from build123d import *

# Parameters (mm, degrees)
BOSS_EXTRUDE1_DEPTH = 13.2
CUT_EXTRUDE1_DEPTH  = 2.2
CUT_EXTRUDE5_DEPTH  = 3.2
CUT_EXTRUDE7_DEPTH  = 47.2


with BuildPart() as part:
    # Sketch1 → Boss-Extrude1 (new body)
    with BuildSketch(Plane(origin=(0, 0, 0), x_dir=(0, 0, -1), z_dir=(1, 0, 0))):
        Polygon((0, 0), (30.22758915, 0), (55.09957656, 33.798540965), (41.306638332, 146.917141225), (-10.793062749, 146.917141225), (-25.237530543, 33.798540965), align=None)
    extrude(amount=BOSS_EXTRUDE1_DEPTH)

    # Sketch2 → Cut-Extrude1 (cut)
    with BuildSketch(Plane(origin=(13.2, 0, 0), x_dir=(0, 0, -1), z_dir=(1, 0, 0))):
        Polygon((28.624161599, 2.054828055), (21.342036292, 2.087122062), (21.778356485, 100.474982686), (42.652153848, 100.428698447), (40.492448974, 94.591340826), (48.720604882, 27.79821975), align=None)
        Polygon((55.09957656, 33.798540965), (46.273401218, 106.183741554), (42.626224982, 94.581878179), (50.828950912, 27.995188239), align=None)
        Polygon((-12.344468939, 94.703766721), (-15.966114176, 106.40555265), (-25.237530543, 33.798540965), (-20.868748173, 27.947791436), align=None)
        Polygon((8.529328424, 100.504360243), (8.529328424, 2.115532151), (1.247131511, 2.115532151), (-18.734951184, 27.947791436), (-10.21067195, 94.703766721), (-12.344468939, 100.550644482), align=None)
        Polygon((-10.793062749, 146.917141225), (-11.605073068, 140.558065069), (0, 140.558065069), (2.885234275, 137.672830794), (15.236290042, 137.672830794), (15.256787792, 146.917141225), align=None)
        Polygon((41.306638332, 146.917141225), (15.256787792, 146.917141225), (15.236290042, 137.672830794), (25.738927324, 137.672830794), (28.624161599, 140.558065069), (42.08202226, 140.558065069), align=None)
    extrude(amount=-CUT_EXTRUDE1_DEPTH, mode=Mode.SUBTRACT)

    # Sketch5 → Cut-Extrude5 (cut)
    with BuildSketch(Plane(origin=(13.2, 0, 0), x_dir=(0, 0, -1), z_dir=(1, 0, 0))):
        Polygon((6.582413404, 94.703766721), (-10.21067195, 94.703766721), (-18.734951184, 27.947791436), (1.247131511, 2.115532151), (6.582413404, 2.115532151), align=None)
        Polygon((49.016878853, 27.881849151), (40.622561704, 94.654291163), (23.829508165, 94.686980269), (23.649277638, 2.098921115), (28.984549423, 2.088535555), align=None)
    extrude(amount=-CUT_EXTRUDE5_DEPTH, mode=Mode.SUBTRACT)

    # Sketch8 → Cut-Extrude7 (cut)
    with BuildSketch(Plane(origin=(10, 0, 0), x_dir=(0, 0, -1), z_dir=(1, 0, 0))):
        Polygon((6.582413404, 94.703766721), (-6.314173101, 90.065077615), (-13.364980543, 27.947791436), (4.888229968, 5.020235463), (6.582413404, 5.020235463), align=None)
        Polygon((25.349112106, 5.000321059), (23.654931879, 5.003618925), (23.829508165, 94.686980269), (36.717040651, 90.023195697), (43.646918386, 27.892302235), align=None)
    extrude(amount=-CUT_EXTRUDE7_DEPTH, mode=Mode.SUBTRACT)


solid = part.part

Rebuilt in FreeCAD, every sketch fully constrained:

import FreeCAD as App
import Part
import Sketcher
Q = App.Units.Quantity


def add_polygon(sketch, points):
    """Adds a closed chain of lines whose ends are joined by coincident constraints."""
    first, n = sketch.GeometryCount, len(points)
    for a, b in zip(points, points[1:] + points[:1]):
        sketch.addGeometry(Part.LineSegment(App.Vector(*a, 0), App.Vector(*b, 0)), False)
    for i in range(n):
        sketch.addConstraint(Sketcher.Constraint("Coincident", first + i, 2, first + (i + 1) % n, 1))

doc = App.newDocument("Part")
params = doc.addObject("Spreadsheet::Sheet", "Params")
for row, (alias, value) in enumerate([
    ("pad1_length", "13.2 mm"),
    ("pocket1_length", "2.2 mm"),
    ("pocket2_length", "3.2 mm"),
    ("pocket3_length", "47.2 mm"),
], start=1):
    params.set(f"A{row}", alias)
    params.set(f"B{row}", "=" + value)
    params.setAlias(f"B{row}", alias)

body = doc.addObject("PartDesign::Body", "Body")

# Sketch on YZ plane
sketch1 = body.newObject("Sketcher::SketchObject", "Sketch")
sketch1.AttachmentSupport = (doc.getObject("YZ_Plane"), [""])
sketch1.MapMode = "FlatFace"
add_polygon(sketch1, [(0, 0), (0, -30), (34, -55), (147, -41), (147, 11), (34, 25)])  # lines 0-5
sketch1.addConstraint([
    Sketcher.Constraint("Vertical", 0),
    Sketcher.Constraint("Vertical", 3),
    Sketcher.Constraint("Coincident", 5, 2, -1, 1),
    Sketcher.Constraint("Vertical", 1, 2, 4, 2),
    Sketcher.Constraint("DistanceY", 3, 1, 3, 2, Q("52.099701 mm")),
    Sketcher.Constraint("Distance", 4, Q("114.037101 mm")),
    Sketcher.Constraint("DistanceY", 0, 2, 0, 1, Q("30.227589 mm")),
    Sketcher.Constraint("DistanceX", 1, 2, 2, 2, Q("113.1186 mm")),
    Sketcher.Constraint("Distance", 1, Q("41.96376 mm")),
    Sketcher.Constraint("DistanceX", -1, 1, 1, 2, Q("33.798541 mm")),
    Sketcher.Constraint("DistanceY", 2, 2, -1, 1, Q("41.306638 mm")),
])
pad1 = body.newObject("PartDesign::Pad", "Pad")
pad1.Profile = sketch1
pad1.setExpression("Length", "Params.pad1_length")

# Sketch on YZ plane
sketch2 = body.newObject("Sketcher::SketchObject", "Sketch001")
sketch2.AttachmentSupport = (doc.getObject("YZ_Plane"), [""])
sketch2.MapMode = "FlatFace"
sketch2.AttachmentOffset = App.Placement(App.Vector(0, 0, 13.2), App.Rotation())
add_polygon(sketch2, [(2.087122, -21.342036), (2.054828, -28.624162), (27.79822, -48.720605), (94.591341, -40.492449), (100.428698, -42.652154), (100.474983, -21.778356)])  # lines 0-5
add_polygon(sketch2, [(33.798541, -55.099577), (106.183742, -46.273401), (94.581878, -42.626225), (27.995188, -50.828951)])  # lines 6-9
add_polygon(sketch2, [(94.703767, 12.344469), (106.405553, 15.966114), (33.798541, 25.237531), (27.947791, 20.868748)])  # lines 10-13
add_polygon(sketch2, [(2.115532, -8.529328), (100.50436, -8.529328), (100.550644, 12.344469), (94.703767, 10.210672), (27.947791, 18.734951), (2.115532, -1.247132)])  # lines 14-19
add_polygon(sketch2, [(146.917141, 10.793063), (140.558065, 11.605073), (140.558065, 0), (137.672831, -2.885234), (137.672831, -25.738927), (140.558065, -28.624162), (140.558065, -42.082022), (146.917141, -41.306638)])  # lines 20-27
sketch2.addConstraint([
    Sketcher.Constraint("Horizontal", 14),
    Sketcher.Constraint("Vertical", 19),
    Sketcher.Constraint("Vertical", 21),
    Sketcher.Constraint("Vertical", 23),
    Sketcher.Constraint("Vertical", 25),
    Sketcher.Constraint("Vertical", 27),
    Sketcher.Constraint("PointOnObject", 21, 2, -1),
    Sketcher.Constraint("DistanceY", 14, 2, 16, 2, Q("18.74 mm")),
    Sketcher.Constraint("DistanceY", 27, 1, 27, 2, Q("52.099701 mm")),
    Sketcher.Constraint("DistanceY", 23, 2, 20, 2, Q("37.344 mm")),
    Sketcher.Constraint("DistanceX", 14, 1, 14, 2, Q("98.388828 mm")),
    Sketcher.Constraint("DistanceY", 25, 2, 25, 1, Q("13.457861 mm")),
    Sketcher.Constraint("DistanceX", -1, 1, 3, 2, Q("100.428698 mm")),
    Sketcher.Constraint("DistanceY", 6, 2, -1, 1, Q("46.273401 mm")),
    Sketcher.Constraint("DistanceX", 2, 2, 6, 2, Q("11.592401 mm")),
    Sketcher.Constraint("DistanceY", 8, 2, 2, 2, Q("10.336502 mm")),
    Sketcher.Constraint("DistanceY", 8, 2, 12, 2, Q("71.697699 mm")),
    Sketcher.Constraint("DistanceY", 14, 2, 20, 2, Q("20.134401 mm")),
    Sketcher.Constraint("DistanceX", 13, 2, 20, 2, Q("45.854298 mm")),
    Sketcher.Constraint("DistanceX", 16, 2, 20, 2, Q("45.854298 mm")),
    Sketcher.Constraint("DistanceX", 6, 2, 26, 2, Q("40.7334 mm")),
    Sketcher.Constraint("Distance", 2, Q("67.298021 mm")),
    Sketcher.Constraint("Distance", 3, Q("6.224072 mm")),
    Sketcher.Constraint("Distance", 4, Q("20.873849 mm")),
    Sketcher.Constraint("Distance", 5, Q("98.388828 mm")),
    Sketcher.Constraint("Distance", 6, Q("72.921318 mm")),
    Sketcher.Constraint("Distance", 8, Q("67.090029 mm")),
    Sketcher.Constraint("Distance", 13, Q("67.298021 mm")),
    Sketcher.Constraint("Distance", 15, Q("20.873849 mm")),
    Sketcher.Constraint("Distance", 16, Q("6.224072 mm")),
    Sketcher.Constraint("Distance", 17, Q("67.298021 mm")),
    Sketcher.Constraint("Distance", 20, Q("6.410711 mm")),
    Sketcher.Constraint("DistanceY", 19, 2, 19, 1, Q("7.282197 mm")),
    Sketcher.Constraint("DistanceY", 21, 2, 21, 1, Q("11.605073 mm")),
    Sketcher.Constraint("DistanceY", 23, 2, 23, 1, Q("22.853693 mm")),
    Sketcher.Constraint("DistanceX", -1, 1, 0, 2, Q("2.054828 mm")),
    Sketcher.Constraint("DistanceY", 0, 2, -1, 1, Q("28.624162 mm")),
    Sketcher.Constraint("DistanceX", -1, 1, 1, 2, Q("27.79822 mm")),
    Sketcher.Constraint("DistanceX", -1, 1, 2, 2, Q("94.591341 mm")),
    Sketcher.Constraint("DistanceY", 2, 2, -1, 1, Q("40.492449 mm")),
    Sketcher.Constraint("DistanceX", -1, 1, 7, 2, Q("94.581878 mm")),
    Sketcher.Constraint("DistanceX", -1, 1, 8, 2, Q("27.995188 mm")),
    Sketcher.Constraint("DistanceX", -1, 1, 9, 2, Q("33.798541 mm")),
    Sketcher.Constraint("DistanceX", -1, 1, 11, 2, Q("33.798541 mm")),
    Sketcher.Constraint("DistanceY", -1, 1, 11, 2, Q("25.237531 mm")),
    Sketcher.Constraint("DistanceX", -1, 1, 12, 2, Q("27.947791 mm")),
    Sketcher.Constraint("DistanceY", -1, 1, 13, 2, Q("12.344469 mm")),
    Sketcher.Constraint("DistanceX", -1, 1, 14, 2, Q("100.50436 mm")),
    Sketcher.Constraint("DistanceX", -1, 1, 17, 2, Q("27.947791 mm")),
    Sketcher.Constraint("DistanceX", -1, 1, 22, 2, Q("137.672831 mm")),
    Sketcher.Constraint("DistanceY", 24, 2, -1, 1, Q("28.624162 mm")),
    Sketcher.Constraint("DistanceX", 2, 2, 4, 2, Q("5.883642 mm")),
    Sketcher.Constraint("DistanceY", 1, 2, 5, 2, Q("27.378569 mm")),
    Sketcher.Constraint("DistanceX", 4, 2, 10, 2, Q("5.93057 mm")),
    Sketcher.Constraint("DistanceY", 4, 2, 10, 2, Q("37.744471 mm")),
    Sketcher.Constraint("Distance", 24, Q("4.080337 mm")),
])
pocket1 = body.newObject("PartDesign::Pocket", "Pocket")
pocket1.Profile = sketch2
pocket1.setExpression("Length", "Params.pocket1_length")

# Sketch on YZ plane
sketch3 = body.newObject("Sketcher::SketchObject", "Sketch002")
sketch3.AttachmentSupport = (doc.getObject("YZ_Plane"), [""])
sketch3.MapMode = "FlatFace"
sketch3.AttachmentOffset = App.Placement(App.Vector(0, 0, 13.2), App.Rotation())
add_polygon(sketch3, [(95, -7), (95, 10), (28, 19), (2, -1), (2, -7)])  # lines 0-4
add_polygon(sketch3, [(28, -49), (95, -41), (95, -24), (2, -24), (2, -29)])  # lines 5-9
sketch3.addConstraint([
    Sketcher.Constraint("Vertical", 0),
    Sketcher.Constraint("Vertical", 3),
    Sketcher.Constraint("Horizontal", 4),
    Sketcher.Constraint("Perpendicular", 6, 7),
    Sketcher.Constraint("Perpendicular", 7, 8),
    Sketcher.Constraint("Equal", 1, 5),
    Sketcher.Constraint("Equal", 2, 9),
    Sketcher.Constraint("DistanceY", 3, 2, 3, 1, Q("5.335282 mm")),
    Sketcher.Constraint("DistanceX", 1, 2, 5, 2, Q("66.7065 mm")),
    Sketcher.Constraint("DistanceY", 8, 2, 1, 2, Q("47.719501 mm")),
    Sketcher.Constraint("DistanceY", 9, 2, 7, 2, Q("25.367601 mm")),
    Sketcher.Constraint("Distance", 1, Q("67.298021 mm")),
    Sketcher.Constraint("Distance", 8, Q("5.335282 mm")),
    Sketcher.Constraint("DistanceX", 4, 1, 4, 2, Q("92.588235 mm")),
    Sketcher.Constraint("DistanceY", 0, 1, 0, 2, Q("16.793085 mm")),
    Sketcher.Constraint("DistanceY", -1, 1, 0, 2, Q("10.210672 mm")),
    Sketcher.Constraint("DistanceX", -1, 1, 1, 2, Q("27.947791 mm")),
    Sketcher.Constraint("DistanceY", -1, 1, 1, 2, Q("18.734951 mm")),
    Sketcher.Constraint("DistanceY", 5, 2, -1, 1, Q("40.622562 mm")),
    Sketcher.Constraint("DistanceX", -1, 1, 6, 2, Q("94.68698 mm")),
])
pocket2 = body.newObject("PartDesign::Pocket", "Pocket001")
pocket2.Profile = sketch3
pocket2.setExpression("Length", "Params.pocket2_length")

# Sketch on YZ plane
sketch4 = body.newObject("Sketcher::SketchObject", "Sketch003")
sketch4.AttachmentSupport = (doc.getObject("YZ_Plane"), [""])
sketch4.MapMode = "FlatFace"
sketch4.AttachmentOffset = App.Placement(App.Vector(0, 0, 10), App.Rotation())
add_polygon(sketch4, [(94.7, -6.6), (90.1, 6.3), (27.9, 13.4), (5, -4.9), (5, -6.6)])  # lines 0-4
add_polygon(sketch4, [(5, -23.7), (5, -25.3), (27.9, -43.6), (90, -36.7), (94.7, -23.8)])  # lines 5-9
sketch4.addConstraint([
    Sketcher.Constraint("Vertical", 3),
    Sketcher.Constraint("Horizontal", 4),
    Sketcher.Constraint("Perpendicular", 5, 9),
    Sketcher.Constraint("Equal", 2, 6),
    Sketcher.Constraint("Equal", 1, 7),
    Sketcher.Constraint("Equal", 0, 8),
    Sketcher.Constraint("DistanceX", 4, 1, 4, 2, Q("89.683531 mm")),
    Sketcher.Constraint("DistanceY", 5, 2, 3, 2, Q("18.766699 mm")),
    Sketcher.Constraint("DistanceY", 6, 2, 1, 2, Q("57.011899 mm")),
    Sketcher.Constraint("DistanceY", 9, 2, 2, 2, Q("18.766702 mm")),
    Sketcher.Constraint("Distance", 0, Q("13.705451 mm")),
    Sketcher.Constraint("Distance", 9, Q("89.683531 mm")),
    Sketcher.Constraint("DistanceY", 3, 2, 3, 1, Q("1.694183 mm")),
    Sketcher.Constraint("DistanceX", -1, 1, 1, 2, Q("27.947791 mm")),
    Sketcher.Constraint("DistanceY", -1, 1, 1, 2, Q("13.364981 mm")),
    Sketcher.Constraint("DistanceY", 2, 2, -1, 1, Q("4.88823 mm")),
    Sketcher.Constraint("DistanceX", -1, 1, 5, 2, Q("5.000321 mm")),
    Sketcher.Constraint("DistanceY", 7, 2, -1, 1, Q("36.717041 mm")),
    Sketcher.Constraint("DistanceX", -1, 1, 8, 2, Q("94.68698 mm")),
    Sketcher.Constraint("DistanceX", 5, 2, 6, 2, Q("22.891981 mm")),
])
pocket3 = body.newObject("PartDesign::Pocket", "Pocket002")
pocket3.Profile = sketch4
pocket3.setExpression("Length", "Params.pocket3_length")

doc.recompute()
